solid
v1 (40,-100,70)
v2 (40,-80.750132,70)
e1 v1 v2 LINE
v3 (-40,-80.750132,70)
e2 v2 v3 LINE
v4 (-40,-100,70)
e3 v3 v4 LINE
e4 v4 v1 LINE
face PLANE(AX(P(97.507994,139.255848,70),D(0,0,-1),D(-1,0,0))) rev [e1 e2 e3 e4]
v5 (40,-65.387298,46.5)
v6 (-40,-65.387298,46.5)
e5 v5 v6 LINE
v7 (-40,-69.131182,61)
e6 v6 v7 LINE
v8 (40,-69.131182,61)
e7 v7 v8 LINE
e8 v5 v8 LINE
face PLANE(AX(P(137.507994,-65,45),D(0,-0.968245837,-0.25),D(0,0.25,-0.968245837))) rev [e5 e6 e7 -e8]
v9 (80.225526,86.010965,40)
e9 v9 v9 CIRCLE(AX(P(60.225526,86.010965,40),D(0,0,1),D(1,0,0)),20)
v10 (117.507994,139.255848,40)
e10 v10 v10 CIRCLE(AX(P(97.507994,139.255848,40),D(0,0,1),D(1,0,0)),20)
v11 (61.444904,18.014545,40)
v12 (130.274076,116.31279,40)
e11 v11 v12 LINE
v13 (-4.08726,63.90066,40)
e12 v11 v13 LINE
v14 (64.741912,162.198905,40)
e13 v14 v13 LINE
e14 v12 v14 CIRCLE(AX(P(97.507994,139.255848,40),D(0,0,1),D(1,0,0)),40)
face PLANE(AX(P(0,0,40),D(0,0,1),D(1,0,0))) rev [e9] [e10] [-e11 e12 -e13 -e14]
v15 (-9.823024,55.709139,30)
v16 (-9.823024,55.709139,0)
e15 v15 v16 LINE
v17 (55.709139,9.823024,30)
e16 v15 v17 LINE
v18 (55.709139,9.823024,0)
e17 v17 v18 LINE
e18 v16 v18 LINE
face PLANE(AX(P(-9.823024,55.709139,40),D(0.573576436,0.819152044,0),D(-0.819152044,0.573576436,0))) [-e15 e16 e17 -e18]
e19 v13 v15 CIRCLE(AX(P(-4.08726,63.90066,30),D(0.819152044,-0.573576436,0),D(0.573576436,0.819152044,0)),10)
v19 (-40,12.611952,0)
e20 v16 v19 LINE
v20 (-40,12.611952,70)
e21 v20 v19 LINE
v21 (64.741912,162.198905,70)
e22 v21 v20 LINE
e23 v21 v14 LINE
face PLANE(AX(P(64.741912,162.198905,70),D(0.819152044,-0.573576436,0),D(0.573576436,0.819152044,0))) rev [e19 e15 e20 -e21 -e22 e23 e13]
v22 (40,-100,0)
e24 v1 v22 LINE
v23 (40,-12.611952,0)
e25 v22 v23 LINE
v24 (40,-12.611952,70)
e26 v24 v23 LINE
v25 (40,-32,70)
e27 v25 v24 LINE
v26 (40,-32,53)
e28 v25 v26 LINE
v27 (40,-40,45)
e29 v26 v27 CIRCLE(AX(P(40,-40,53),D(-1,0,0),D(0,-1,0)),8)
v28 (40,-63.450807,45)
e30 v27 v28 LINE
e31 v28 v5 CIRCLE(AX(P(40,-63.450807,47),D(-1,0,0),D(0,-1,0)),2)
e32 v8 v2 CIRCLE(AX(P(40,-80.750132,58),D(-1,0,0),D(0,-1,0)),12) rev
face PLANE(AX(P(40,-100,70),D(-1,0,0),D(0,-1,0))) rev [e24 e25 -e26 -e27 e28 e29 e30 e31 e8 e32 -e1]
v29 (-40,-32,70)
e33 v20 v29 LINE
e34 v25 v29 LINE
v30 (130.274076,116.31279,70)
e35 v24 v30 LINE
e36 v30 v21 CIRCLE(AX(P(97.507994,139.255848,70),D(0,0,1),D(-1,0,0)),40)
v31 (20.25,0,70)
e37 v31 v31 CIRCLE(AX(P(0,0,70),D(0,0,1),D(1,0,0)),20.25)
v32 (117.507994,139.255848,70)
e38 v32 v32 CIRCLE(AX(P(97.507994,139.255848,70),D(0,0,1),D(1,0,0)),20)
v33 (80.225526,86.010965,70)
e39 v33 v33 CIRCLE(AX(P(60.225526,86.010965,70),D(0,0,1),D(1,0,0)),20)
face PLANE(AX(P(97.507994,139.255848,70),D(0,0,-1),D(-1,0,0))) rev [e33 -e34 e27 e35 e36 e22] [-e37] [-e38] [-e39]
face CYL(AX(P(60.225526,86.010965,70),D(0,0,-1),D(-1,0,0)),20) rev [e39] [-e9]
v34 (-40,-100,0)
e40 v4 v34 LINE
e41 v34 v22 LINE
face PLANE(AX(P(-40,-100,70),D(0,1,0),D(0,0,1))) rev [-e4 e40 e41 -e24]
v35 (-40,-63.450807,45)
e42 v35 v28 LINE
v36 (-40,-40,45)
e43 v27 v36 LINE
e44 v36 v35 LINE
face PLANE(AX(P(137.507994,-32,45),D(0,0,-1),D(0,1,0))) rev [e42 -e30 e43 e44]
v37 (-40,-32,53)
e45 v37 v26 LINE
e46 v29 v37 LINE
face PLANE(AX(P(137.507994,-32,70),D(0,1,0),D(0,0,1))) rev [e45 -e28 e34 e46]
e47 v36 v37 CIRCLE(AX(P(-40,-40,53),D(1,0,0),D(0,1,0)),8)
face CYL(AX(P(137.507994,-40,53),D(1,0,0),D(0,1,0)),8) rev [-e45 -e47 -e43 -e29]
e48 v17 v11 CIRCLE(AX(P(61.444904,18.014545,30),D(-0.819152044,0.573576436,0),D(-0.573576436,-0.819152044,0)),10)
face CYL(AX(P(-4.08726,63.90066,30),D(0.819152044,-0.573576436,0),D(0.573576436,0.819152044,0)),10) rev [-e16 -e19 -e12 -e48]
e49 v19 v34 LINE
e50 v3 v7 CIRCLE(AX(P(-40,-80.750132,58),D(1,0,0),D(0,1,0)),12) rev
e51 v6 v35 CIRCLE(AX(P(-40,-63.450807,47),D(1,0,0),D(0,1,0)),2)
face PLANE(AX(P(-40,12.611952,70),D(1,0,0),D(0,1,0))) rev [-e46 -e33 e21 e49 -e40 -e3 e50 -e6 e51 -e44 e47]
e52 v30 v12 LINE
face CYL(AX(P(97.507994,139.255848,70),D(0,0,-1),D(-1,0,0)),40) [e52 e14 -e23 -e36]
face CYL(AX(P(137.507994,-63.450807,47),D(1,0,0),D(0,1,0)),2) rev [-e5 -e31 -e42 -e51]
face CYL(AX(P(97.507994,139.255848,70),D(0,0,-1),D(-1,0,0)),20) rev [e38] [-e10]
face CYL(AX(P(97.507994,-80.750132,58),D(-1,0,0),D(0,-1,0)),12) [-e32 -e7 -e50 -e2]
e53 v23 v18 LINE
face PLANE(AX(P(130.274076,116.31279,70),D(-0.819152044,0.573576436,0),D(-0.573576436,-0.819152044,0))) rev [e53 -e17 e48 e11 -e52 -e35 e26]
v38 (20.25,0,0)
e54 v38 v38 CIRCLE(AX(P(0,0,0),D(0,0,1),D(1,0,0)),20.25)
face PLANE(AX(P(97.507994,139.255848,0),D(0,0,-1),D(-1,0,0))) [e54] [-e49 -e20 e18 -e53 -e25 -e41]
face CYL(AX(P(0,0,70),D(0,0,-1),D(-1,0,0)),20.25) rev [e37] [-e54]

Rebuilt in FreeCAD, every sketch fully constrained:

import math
import FreeCAD as App
import Part
import Sketcher

V = App.Vector
Q = App.Units.Quantity


def edges_at(feature, points):
    """Names of the edges that pass closest to the given points."""
    edges = feature.Shape.Edges
    near = lambda p: min(range(len(edges)), key=lambda i: edges[i].distToShape(Part.Vertex(*p))[0])
    return sorted({f"Edge{near(p) + 1}" for p in points})


def add_polygon(sketch, points):
    """Adds a closed chain of lines whose ends are joined by coincident constraints."""
    first, n = sketch.GeometryCount, len(points)
    for a, b in zip(points, points[1:] + points[:1]):
        sketch.addGeometry(Part.LineSegment(App.Vector(*a, 0), App.Vector(*b, 0)), False)
    for i in range(n):
        sketch.addConstraint(Sketcher.Constraint("Coincident", first + i, 2, first + (i + 1) % n, 1))

doc = App.newDocument("Part")
body = doc.addObject("PartDesign::Body", "Body")

# Sketch on XY plane
sketch1 = body.newObject("Sketcher::SketchObject", "Sketch")
sketch1.AttachmentSupport = (doc.getObject("XY_Plane"), [""])
sketch1.MapMode = "FlatFace"
sketch1.addGeometry([
    Part.LineSegment(V(65, 162, 0), V(-40, 13, 0)),  # 0
    Part.LineSegment(V(-40, 13, 0), V(-40, -100, 0)),  # 1
    Part.LineSegment(V(-40, -100, 0), V(40, -100, 0)),  # 2
    Part.LineSegment(V(40, -100, 0), V(40, -13, 0)),  # 3
    Part.LineSegment(V(40, -13, 0), V(130, 116, 0)),  # 4
    Part.ArcOfCircle(Part.Circle(V(98, 139, 0), V(0, 0, 1), 40), math.radians(-35), math.radians(145)),  # 5
    Part.Circle(V(0, 0, 0), V(0, 0, 1), 20),  # 6
    Part.Circle(V(60, 86, 0), V(0, 0, 1), 20),  # 7
    Part.Circle(V(98, 139, 0), V(0, 0, 1), 20),  # 8
], False)
sketch1.addConstraint([
    Sketcher.Constraint("Coincident", 0, 2, 1, 1),
    Sketcher.Constraint("Coincident", 1, 2, 2, 1),
    Sketcher.Constraint("Coincident", 2, 2, 3, 1),
    Sketcher.Constraint("Coincident", 3, 2, 4, 1),
    Sketcher.Constraint("Tangent", 4, 2, 5, 1),
    Sketcher.Constraint("Tangent", 5, 2, 0, 1),
    Sketcher.Constraint("Vertical", 1),
    Sketcher.Constraint("Horizontal", 2),
    Sketcher.Constraint("Vertical", 3),
    Sketcher.Constraint("Coincident", 6, 3, -1, 1),
    Sketcher.Constraint("Coincident", 8, 3, 5, 3),
    Sketcher.Constraint("Equal", 7, 8),
    Sketcher.Constraint("Symmetric", 0, 2, 3, 2, -1, 1),
    Sketcher.Constraint("Parallel", 0, 4),
    Sketcher.Constraint("Diameter", 7, 40.0),
    Sketcher.Constraint("Radius", 5, 40.0),
    Sketcher.Constraint("Diameter", 6, 40.5),
    Sketcher.Constraint("DistanceX", 2, 1, 2, 2, 80.0),
    Sketcher.Constraint("Angle", 0, Q("-125 deg")),
    Sketcher.Constraint("DistanceY", 1, 2, -1, 1, 100.0),
    Sketcher.Constraint("Distance", 0, 182.611952),
    Sketcher.Constraint("DistanceX", 7, 3, 5, 3, 37.282468),
    Sketcher.Constraint("DistanceY", 7, 3, 5, 2, 76.18794),
])
pad1 = body.newObject("PartDesign::Pad", "Pad")
pad1.Profile = sketch1
pad1.Length = 70

# Sketch on XY plane
sketch2 = body.newObject("Sketcher::SketchObject", "Sketch001")
sketch2.AttachmentSupport = (doc.getObject("XY_Plane"), [""])
sketch2.MapMode = "FlatFace"
add_polygon(sketch2, [(-10, 56), (56, 10), (170, 174), (105, 220)])  # lines 0-3
sketch2.addConstraint([
    Sketcher.Constraint("Perpendicular", 0, 1),
    Sketcher.Constraint("Perpendicular", 1, 2),
    Sketcher.Constraint("Perpendicular", 2, 3),
    Sketcher.Constraint("Angle", 0, Q("-35 deg")),
    Sketcher.Constraint("Distance", 0, 80.0),
    Sketcher.Constraint("Distance", 1, 200.0),
    Sketcher.Constraint("DistanceX", -1, 1, 0, 2, 55.709139),
    Sketcher.Constraint("DistanceY", -1, 1, 2, 2, 219.539548),
])
pocket1 = body.newObject("PartDesign::Pocket", "Pocket")
pocket1.Profile = sketch2
pocket1.Length = 40
pocket1.Reversed = True

# Sketch on YZ plane
sketch3 = body.newObject("Sketcher::SketchObject", "Sketch002")
sketch3.AttachmentSupport = (doc.getObject("YZ_Plane"), [""])
sketch3.MapMode = "FlatFace"
sketch3.AttachmentOffset = App.Placement(V(0, 0, -40), App.Rotation())
add_polygon(sketch3, [(-32, 70), (-32, 45), (-65, 45), (-71, 70)])  # lines 0-3
sketch3.addConstraint([
    Sketcher.Constraint("Vertical", 0),
    Sketcher.Constraint("Horizontal", 1),
    Sketcher.Constraint("Horizontal", 3),
    Sketcher.Constraint("DistanceX", 1, 2, 1, 1, 33.0),
    Sketcher.Constraint("DistanceY", 0, 2, 0, 1, 25.0),
    Sketcher.Constraint("DistanceX", 0, 2, -1, 1, 32.0),
    Sketcher.Constraint("DistanceY", -1, 1, 0, 2, 45.0),
    Sketcher.Constraint("Distance", 2, 25.819889),
])
pocket2 = body.newObject("PartDesign::Pocket", "Pocket001")
pocket2.Profile = sketch3
pocket2.Type = "ThroughAll"
pocket2.Reversed = True
doc.recompute()

fillet = body.newObject("PartDesign::Fillet", "Fillet")
fillet.Base = (pocket2, edges_at(pocket2, [(0, -71.455, 70)]))
fillet.Radius = 12
doc.recompute()

fillet2 = body.newObject("PartDesign::Fillet", "Fillet001")
fillet2.Base = (fillet, edges_at(fillet, [(0, -65, 45)]))
fillet2.Radius = 2
doc.recompute()

fillet3 = body.newObject("PartDesign::Fillet", "Fillet002")
fillet3.Base = (fillet2, edges_at(fillet2, [(0, -32, 45)]))
fillet3.Radius = 8
doc.recompute()

fillet4 = body.newObject("PartDesign::Fillet", "Fillet003")
fillet4.Base = (fillet3, edges_at(fillet3, [(22.943, 32.766, 40)]))
fillet4.Radius = 10

doc.recompute()
